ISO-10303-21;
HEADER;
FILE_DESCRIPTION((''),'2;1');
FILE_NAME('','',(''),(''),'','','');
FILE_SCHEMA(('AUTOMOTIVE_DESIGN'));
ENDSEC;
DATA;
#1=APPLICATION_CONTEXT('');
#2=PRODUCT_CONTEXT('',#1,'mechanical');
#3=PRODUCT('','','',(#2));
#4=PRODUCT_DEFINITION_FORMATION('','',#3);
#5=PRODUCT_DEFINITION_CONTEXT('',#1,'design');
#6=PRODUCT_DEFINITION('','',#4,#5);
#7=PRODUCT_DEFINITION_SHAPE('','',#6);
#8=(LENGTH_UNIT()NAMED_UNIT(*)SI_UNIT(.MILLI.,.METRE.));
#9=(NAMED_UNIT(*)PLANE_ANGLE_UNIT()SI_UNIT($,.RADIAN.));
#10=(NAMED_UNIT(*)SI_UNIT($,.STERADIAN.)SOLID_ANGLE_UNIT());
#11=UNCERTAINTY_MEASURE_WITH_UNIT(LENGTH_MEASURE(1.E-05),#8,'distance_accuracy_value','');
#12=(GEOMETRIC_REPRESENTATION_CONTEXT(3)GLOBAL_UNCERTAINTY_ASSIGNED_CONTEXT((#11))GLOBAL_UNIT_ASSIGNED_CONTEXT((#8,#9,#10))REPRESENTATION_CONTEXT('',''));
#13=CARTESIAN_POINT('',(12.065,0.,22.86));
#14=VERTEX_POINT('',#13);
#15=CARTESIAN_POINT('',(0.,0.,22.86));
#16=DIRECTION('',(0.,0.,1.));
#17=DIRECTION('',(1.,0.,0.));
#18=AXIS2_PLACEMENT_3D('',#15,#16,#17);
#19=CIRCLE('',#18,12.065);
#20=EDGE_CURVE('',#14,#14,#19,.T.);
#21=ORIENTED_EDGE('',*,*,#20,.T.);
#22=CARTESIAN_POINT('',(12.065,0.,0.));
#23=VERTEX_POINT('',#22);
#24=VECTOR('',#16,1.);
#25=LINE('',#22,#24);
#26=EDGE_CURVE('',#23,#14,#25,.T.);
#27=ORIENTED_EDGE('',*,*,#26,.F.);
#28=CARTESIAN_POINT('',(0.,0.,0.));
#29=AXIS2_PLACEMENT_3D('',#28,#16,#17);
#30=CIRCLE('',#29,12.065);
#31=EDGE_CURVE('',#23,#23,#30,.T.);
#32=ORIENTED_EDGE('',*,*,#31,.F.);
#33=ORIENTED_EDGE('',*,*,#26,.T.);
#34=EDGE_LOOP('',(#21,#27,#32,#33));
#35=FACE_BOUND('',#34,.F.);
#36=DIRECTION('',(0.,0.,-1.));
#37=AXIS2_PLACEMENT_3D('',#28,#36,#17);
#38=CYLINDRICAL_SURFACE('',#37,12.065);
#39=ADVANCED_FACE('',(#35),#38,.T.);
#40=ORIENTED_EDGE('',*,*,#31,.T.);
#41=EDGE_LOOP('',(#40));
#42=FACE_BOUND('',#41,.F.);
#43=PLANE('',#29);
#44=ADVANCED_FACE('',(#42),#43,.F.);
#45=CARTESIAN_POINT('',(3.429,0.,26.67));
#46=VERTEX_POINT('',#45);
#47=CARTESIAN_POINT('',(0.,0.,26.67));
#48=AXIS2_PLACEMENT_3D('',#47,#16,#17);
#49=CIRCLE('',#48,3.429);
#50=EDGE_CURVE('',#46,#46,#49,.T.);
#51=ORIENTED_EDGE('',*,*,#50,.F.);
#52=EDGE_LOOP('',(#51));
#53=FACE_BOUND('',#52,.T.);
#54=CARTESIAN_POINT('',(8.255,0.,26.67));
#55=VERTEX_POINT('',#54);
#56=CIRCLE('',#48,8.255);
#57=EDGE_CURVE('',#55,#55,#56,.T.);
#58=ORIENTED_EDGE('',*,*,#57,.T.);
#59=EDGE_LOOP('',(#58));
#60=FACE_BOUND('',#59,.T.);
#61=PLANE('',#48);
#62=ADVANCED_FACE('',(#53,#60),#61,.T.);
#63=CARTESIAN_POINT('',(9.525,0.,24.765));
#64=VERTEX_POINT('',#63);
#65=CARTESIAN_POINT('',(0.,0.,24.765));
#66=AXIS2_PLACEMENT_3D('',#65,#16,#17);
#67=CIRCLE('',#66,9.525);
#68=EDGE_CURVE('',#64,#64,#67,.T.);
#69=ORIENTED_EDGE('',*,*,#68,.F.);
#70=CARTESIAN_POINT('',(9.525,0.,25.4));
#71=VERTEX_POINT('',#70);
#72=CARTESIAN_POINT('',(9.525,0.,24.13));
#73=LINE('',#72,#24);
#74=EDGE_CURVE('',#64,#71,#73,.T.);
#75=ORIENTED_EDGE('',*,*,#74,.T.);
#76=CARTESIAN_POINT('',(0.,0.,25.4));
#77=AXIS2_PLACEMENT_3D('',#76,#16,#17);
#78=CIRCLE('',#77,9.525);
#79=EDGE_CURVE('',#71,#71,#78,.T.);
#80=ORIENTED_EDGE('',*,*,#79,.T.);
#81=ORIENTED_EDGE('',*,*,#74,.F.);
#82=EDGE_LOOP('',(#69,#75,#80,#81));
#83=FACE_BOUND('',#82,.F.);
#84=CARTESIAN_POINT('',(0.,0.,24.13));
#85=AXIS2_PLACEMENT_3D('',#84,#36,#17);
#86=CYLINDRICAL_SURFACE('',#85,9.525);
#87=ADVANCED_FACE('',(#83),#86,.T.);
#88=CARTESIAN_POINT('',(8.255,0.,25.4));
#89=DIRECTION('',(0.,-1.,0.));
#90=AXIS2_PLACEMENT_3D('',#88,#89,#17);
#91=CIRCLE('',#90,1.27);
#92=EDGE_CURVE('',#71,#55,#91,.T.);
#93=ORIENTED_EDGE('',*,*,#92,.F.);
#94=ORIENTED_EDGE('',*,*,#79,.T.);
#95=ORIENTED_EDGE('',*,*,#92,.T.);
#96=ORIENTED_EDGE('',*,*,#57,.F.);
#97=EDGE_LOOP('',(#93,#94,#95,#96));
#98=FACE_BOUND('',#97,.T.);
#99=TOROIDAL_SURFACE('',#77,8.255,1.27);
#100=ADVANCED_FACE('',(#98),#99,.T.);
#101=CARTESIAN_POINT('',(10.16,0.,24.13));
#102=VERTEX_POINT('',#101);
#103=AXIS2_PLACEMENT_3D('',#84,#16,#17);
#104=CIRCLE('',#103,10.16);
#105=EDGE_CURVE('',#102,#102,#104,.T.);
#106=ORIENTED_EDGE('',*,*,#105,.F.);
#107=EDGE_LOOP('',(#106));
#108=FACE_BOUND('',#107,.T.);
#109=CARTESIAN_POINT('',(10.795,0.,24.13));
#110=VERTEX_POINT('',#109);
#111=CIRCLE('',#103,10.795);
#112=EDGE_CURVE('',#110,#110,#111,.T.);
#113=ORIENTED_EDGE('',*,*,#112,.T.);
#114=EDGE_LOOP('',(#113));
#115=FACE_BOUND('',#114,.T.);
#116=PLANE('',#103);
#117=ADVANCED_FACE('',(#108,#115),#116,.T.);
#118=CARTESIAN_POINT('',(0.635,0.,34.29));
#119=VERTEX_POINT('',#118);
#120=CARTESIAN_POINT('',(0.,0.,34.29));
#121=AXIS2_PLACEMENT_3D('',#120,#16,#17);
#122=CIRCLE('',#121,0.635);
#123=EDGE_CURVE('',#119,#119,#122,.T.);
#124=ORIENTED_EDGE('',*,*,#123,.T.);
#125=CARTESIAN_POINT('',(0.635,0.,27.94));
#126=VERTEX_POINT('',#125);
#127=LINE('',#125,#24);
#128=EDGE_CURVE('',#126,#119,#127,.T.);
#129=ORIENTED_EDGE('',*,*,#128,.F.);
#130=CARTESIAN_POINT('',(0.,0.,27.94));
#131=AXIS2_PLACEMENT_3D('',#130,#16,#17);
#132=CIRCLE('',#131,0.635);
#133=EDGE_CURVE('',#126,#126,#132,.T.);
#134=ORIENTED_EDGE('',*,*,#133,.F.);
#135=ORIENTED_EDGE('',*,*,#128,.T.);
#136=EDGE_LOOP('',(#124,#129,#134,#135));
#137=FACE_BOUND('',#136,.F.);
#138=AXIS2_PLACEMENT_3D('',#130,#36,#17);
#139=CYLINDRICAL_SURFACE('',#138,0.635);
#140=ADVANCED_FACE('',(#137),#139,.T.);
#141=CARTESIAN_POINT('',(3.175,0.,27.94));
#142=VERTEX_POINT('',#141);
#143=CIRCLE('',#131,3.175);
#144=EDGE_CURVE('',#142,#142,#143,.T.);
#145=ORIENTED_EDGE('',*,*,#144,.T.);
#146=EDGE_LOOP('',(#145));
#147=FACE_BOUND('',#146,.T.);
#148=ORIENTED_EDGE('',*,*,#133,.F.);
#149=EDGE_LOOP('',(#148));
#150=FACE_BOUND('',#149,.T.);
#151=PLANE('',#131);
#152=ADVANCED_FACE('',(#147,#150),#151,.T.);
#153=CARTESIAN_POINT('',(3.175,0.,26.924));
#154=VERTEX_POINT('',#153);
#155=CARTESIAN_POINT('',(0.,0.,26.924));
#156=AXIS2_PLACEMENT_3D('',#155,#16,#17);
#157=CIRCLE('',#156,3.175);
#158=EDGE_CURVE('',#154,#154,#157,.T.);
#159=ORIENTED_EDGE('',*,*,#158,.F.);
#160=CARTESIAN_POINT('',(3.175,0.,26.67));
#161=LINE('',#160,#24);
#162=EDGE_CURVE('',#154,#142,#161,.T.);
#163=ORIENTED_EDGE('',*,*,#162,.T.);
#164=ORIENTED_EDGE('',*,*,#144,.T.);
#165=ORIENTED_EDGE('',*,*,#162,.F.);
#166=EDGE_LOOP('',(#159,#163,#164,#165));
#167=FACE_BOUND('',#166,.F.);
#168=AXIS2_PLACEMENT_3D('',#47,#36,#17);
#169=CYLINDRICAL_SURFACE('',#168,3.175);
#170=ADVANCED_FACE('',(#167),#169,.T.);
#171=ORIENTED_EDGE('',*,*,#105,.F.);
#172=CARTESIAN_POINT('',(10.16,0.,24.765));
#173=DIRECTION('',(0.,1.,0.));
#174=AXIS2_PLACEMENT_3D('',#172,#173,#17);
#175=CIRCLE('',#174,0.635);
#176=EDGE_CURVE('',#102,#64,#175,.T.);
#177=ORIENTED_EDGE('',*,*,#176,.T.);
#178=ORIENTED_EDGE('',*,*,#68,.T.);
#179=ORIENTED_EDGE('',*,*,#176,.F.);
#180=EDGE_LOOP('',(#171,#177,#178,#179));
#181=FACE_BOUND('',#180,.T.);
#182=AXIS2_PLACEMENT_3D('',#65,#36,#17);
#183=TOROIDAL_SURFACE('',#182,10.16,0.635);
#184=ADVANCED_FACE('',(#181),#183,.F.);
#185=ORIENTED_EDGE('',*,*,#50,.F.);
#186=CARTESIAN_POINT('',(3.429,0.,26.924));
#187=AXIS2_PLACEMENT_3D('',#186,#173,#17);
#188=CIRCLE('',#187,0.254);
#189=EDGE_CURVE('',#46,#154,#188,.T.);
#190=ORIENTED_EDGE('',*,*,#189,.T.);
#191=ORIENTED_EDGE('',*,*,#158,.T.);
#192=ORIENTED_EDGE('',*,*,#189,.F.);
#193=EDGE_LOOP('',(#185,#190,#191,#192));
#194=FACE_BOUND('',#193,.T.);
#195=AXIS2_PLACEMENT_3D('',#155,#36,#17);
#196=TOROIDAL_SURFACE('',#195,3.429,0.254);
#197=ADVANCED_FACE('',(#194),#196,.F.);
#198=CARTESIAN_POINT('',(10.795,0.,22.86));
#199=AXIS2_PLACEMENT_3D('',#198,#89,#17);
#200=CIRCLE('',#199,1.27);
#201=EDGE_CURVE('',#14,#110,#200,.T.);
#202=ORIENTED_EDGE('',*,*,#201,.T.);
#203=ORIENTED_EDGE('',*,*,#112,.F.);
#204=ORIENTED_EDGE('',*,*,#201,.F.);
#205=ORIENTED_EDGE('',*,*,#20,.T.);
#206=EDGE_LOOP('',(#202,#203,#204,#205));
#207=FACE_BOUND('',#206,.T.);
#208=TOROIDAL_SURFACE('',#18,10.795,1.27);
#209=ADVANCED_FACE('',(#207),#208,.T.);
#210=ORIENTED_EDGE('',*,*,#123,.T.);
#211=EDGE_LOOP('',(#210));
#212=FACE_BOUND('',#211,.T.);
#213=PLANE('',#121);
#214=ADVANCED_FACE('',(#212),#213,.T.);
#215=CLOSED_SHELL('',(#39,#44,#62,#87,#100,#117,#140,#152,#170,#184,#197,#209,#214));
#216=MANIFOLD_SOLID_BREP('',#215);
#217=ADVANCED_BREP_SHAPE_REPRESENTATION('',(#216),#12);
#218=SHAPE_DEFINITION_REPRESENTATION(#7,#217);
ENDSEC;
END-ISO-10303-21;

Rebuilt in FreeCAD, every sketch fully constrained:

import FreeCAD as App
import Part
import Sketcher

V = App.Vector
Q = App.Units.Quantity


def edges_at(feature, points):
    """Names of the edges that pass closest to the given points."""
    edges = feature.Shape.Edges
    near = lambda p: min(range(len(edges)), key=lambda i: edges[i].distToShape(Part.Vertex(*p))[0])
    return sorted({f"Edge{near(p) + 1}" for p in points})

doc = App.newDocument("Part")
body = doc.addObject("PartDesign::Body", "Body")

# Sketch on XY plane
sketch1 = doc.addObject("Sketcher::SketchObject", "Sketch")
body.addObject(sketch1)
sketch1.AttachmentSupport = (doc.XY_Plane, [""])
sketch1.MapMode = "FlatFace"
sketch1.addGeometry(Part.Circle(V(0, 0, 0), V(0, 0, 1), 12), False)
sketch1.addConstraint(Sketcher.Constraint("Coincident", 0, 3, -1, 1))
sketch1.addConstraint(Sketcher.Constraint("Diameter", 0, Q("0.95 in")))
pad1 = doc.addObject("PartDesign::Pad", "Pad")
body.addObject(pad1)
pad1.Profile = sketch1
pad1.Length = Q("0.95 in")

# Sketch on XY plane
sketch2 = doc.addObject("Sketcher::SketchObject", "Sketch001")
body.addObject(sketch2)
sketch2.AttachmentSupport = (doc.XY_Plane, [""])
sketch2.MapMode = "FlatFace"
sketch2.AttachmentOffset = App.Placement(V(0, 0, 0.95 * 25.4), App.Rotation())
sketch2.addGeometry(Part.Circle(V(0, 0, 0), V(0, 0, 1), 10), False)
sketch2.addConstraint(Sketcher.Constraint("Coincident", 0, 3, -1, 1))
sketch2.addConstraint(Sketcher.Constraint("Diameter", 0, Q("0.75 in")))
pad2 = doc.addObject("PartDesign::Pad", "Pad001")
body.addObject(pad2)
pad2.Profile = sketch2
pad2.Length = Q("0.1 in")

# Sketch on XY plane
sketch3 = doc.addObject("Sketcher::SketchObject", "Sketch002")
body.addObject(sketch3)
sketch3.AttachmentSupport = (doc.XY_Plane, [""])
sketch3.MapMode = "FlatFace"
sketch3.AttachmentOffset = App.Placement(V(0, 0, 1.05 * 25.4), App.Rotation())
sketch3.addGeometry(Part.Circle(V(0, 0, 0), V(0, 0, 1), 3.2), False)
sketch3.addConstraint(Sketcher.Constraint("Coincident", 0, 3, -1, 1))
sketch3.addConstraint(Sketcher.Constraint("Diameter", 0, Q("0.25 in")))
pad3 = doc.addObject("PartDesign::Pad", "Pad002")
body.addObject(pad3)
pad3.Profile = sketch3
pad3.Length = Q("0.05 in")

# Sketch on XY plane
sketch4 = doc.addObject("Sketcher::SketchObject", "Sketch003")
body.addObject(sketch4)
sketch4.AttachmentSupport = (doc.XY_Plane, [""])
sketch4.MapMode = "FlatFace"
sketch4.AttachmentOffset = App.Placement(V(0, 0, 1.1 * 25.4), App.Rotation())
sketch4.addGeometry(Part.Circle(V(0, 0, 0), V(0, 0, 1), 0.6), False)
sketch4.addConstraint(Sketcher.Constraint("Coincident", 0, 3, -1, 1))
sketch4.addConstraint(Sketcher.Constraint("Diameter", 0, Q("0.05 in")))
pad4 = doc.addObject("PartDesign::Pad", "Pad003")
body.addObject(pad4)
pad4.Profile = sketch4
pad4.Length = Q("0.25 in")
doc.recompute()

fillet = doc.addObject("PartDesign::Fillet", "Fillet")
body.addObject(fillet)
fillet.Base = (pad4, edges_at(pad4, [(-12.065, 0, 24.13), (-9.525, 0, 26.67)]))
fillet.Radius = Q("0.05 in")
doc.recompute()

fillet2 = doc.addObject("PartDesign::Fillet", "Fillet001")
body.addObject(fillet2)
fillet2.Base = (fillet, edges_at(fillet, [(-9.525, 0, 24.13)]))
fillet2.Radius = Q("0.025 in")
doc.recompute()

fillet3 = doc.addObject("PartDesign::Fillet", "Fillet002")
body.addObject(fillet3)
fillet3.Base = (fillet2, edges_at(fillet2, [(-3.175, 0, 26.67)]))
fillet3.Radius = Q("0.01 in")

doc.recompute()
